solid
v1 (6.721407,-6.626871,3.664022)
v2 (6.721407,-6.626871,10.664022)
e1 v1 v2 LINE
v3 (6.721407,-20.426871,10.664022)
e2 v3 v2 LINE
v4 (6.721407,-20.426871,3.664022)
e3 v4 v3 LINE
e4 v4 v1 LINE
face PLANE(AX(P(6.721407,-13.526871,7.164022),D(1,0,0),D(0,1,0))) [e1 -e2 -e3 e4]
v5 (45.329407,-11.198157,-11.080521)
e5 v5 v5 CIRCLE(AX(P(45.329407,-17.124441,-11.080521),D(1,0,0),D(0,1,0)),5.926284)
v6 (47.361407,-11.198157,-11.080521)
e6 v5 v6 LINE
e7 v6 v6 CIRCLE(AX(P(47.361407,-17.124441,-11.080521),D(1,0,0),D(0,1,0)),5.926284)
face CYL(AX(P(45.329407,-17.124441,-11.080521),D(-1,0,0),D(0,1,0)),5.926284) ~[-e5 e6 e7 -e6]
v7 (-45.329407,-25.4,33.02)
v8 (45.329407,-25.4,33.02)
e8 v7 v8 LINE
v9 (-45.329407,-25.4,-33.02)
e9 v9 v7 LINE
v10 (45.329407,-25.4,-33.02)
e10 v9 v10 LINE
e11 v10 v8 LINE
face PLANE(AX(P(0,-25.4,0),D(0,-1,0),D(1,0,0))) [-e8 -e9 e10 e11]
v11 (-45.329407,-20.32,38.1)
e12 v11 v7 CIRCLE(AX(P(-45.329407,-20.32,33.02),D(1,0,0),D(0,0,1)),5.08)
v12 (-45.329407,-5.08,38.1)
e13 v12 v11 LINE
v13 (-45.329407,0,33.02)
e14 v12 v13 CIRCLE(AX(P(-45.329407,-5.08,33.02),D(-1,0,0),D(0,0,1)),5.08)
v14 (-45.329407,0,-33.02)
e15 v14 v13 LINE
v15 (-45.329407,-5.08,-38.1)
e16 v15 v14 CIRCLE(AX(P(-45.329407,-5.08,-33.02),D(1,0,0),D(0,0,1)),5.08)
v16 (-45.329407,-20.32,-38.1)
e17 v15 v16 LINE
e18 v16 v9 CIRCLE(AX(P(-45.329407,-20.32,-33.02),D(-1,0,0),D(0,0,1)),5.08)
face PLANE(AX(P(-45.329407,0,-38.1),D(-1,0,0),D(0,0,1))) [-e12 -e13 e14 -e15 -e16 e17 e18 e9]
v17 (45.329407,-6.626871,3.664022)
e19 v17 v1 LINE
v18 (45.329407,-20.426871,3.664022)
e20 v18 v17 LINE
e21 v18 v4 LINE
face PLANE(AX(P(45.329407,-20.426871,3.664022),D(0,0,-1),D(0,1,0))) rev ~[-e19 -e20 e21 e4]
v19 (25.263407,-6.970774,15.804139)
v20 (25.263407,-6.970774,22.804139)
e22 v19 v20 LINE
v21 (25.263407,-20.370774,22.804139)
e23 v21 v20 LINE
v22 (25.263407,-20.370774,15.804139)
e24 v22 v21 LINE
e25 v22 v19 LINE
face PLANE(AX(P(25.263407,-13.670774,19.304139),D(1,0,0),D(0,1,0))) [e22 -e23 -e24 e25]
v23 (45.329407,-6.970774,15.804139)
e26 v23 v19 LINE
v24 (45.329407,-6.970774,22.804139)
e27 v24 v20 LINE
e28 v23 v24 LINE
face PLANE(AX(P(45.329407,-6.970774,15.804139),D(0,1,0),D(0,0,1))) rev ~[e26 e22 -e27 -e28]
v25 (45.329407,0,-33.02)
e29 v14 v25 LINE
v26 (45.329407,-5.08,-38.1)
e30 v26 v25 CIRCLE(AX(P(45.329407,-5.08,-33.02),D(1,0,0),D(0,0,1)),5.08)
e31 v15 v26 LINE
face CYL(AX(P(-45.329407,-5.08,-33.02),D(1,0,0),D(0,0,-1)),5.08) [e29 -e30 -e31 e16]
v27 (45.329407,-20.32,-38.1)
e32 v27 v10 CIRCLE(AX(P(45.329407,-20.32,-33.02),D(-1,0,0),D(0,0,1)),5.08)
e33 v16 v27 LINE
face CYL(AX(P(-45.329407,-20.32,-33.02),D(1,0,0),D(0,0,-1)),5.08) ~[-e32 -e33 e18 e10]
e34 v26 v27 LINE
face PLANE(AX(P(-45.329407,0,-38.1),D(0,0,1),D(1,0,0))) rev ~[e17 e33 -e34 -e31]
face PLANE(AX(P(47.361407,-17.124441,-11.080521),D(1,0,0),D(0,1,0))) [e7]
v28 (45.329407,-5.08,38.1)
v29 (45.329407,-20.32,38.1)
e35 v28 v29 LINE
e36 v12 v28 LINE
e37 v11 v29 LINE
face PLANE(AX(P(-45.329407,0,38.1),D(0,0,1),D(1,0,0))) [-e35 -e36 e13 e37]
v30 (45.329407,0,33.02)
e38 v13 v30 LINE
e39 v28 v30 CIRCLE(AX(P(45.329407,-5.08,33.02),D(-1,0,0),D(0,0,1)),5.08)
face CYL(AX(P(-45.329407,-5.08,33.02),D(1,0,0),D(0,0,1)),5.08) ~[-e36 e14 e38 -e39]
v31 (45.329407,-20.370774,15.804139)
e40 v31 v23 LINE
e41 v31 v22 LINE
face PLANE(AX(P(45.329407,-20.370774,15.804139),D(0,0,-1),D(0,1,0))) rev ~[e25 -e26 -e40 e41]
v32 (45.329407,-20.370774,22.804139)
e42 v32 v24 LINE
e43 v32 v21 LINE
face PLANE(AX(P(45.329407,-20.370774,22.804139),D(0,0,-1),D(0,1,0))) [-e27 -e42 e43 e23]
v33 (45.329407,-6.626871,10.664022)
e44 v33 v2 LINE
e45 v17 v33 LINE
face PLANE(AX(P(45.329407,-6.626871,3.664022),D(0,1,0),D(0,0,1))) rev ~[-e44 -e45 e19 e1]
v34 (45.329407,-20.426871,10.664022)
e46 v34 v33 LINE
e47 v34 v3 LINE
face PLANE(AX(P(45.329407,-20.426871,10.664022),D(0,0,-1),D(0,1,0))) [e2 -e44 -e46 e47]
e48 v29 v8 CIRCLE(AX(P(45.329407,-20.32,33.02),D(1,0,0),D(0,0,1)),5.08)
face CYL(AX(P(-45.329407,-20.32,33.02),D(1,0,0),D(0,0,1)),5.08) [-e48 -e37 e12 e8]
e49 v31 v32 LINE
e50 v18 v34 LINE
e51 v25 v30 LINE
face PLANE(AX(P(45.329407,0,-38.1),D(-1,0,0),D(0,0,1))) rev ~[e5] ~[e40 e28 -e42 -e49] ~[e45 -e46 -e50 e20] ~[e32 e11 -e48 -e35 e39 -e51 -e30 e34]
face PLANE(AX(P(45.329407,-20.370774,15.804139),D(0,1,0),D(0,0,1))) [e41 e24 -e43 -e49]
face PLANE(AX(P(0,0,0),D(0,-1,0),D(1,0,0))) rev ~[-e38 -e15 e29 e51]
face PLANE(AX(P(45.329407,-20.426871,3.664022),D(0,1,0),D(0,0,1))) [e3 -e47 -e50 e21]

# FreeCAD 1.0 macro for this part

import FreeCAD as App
import Part
import Sketcher
from FreeCAD import Vector
Q = App.Units.Quantity


def edges_at(feature, points):
    """Names of the edges that pass closest to the given points."""
    edges = feature.Shape.Edges
    near = lambda p: min(range(len(edges)), key=lambda i: edges[i].distToShape(Part.Vertex(*p))[0])
    return sorted({f"Edge{near(p) + 1}" for p in points})

doc = App.newDocument("Part")
body = doc.addObject("PartDesign::Body", "Body")

sketch1 = doc.addObject("Sketcher::SketchObject", "Sketch")
body.addObject(sketch1)
sketch1.AttachmentSupport = (doc.XZ_Plane, [""])
sketch1.MapMode = "FlatFace"
sketch1.addGeometry(Part.LineSegment(Vector(-45, 38, 0), Vector(-45, -38, 0)), False)
sketch1.addGeometry(Part.LineSegment(Vector(-45, -38, 0), Vector(45, -38, 0)), False)
sketch1.addGeometry(Part.LineSegment(Vector(45, -38, 0), Vector(45, 38, 0)), False)
sketch1.addGeometry(Part.LineSegment(Vector(45, 38, 0), Vector(-45, 38, 0)), False)
sketch1.addConstraint(Sketcher.Constraint("Coincident", 0, 2, 1, 1))
sketch1.addConstraint(Sketcher.Constraint("Coincident", 1, 2, 2, 1))
sketch1.addConstraint(Sketcher.Constraint("Coincident", 2, 2, 3, 1))
sketch1.addConstraint(Sketcher.Constraint("Coincident", 3, 2, 0, 1))
sketch1.addConstraint(Sketcher.Constraint("Vertical", 0))
sketch1.addConstraint(Sketcher.Constraint("Horizontal", 1))
sketch1.addConstraint(Sketcher.Constraint("Vertical", 2))
sketch1.addConstraint(Sketcher.Constraint("Horizontal", 3))
sketch1.addConstraint(Sketcher.Constraint("Symmetric", 0, 2, 2, 2, -1, 1))
sketch1.addConstraint(Sketcher.Constraint("DistanceY", 0, 2, 0, 1, Q("3 in")))
sketch1.addConstraint(Sketcher.Constraint("DistanceX", 1, 1, 1, 2, 90.658814))
pad1 = doc.addObject("PartDesign::Pad", "Pad")
body.addObject(pad1)
pad1.Profile = sketch1
pad1.Length = Q("1 in")
doc.recompute()

fillet = doc.addObject("PartDesign::Fillet", "Fillet")
body.addObject(fillet)
fillet.Base = (pad1, edges_at(pad1, [
    (0, -25.4, 38.1),
    (0, 0, 38.1),
    (0, 0, -38.1),
    (0, -25.4, -38.1),
]))
fillet.Radius = Q("0.2 in")

sketch2 = doc.addObject("Sketcher::SketchObject", "Sketch001")
body.addObject(sketch2)
sketch2.AttachmentSupport = (doc.YZ_Plane, [""])
sketch2.MapMode = "FlatFace"
sketch2.AttachmentOffset = App.Placement(Vector(0, 0, 45.329407), App.Rotation())
sketch2.addGeometry(Part.LineSegment(Vector(-20, 11, 0), Vector(-20, 4, 0)), False)
sketch2.addGeometry(Part.LineSegment(Vector(-20, 4, 0), Vector(-7, 4, 0)), False)
sketch2.addGeometry(Part.LineSegment(Vector(-7, 4, 0), Vector(-7, 11, 0)), False)
sketch2.addGeometry(Part.LineSegment(Vector(-7, 11, 0), Vector(-20, 11, 0)), False)
sketch2.addConstraint(Sketcher.Constraint("Coincident", 0, 2, 1, 1))
sketch2.addConstraint(Sketcher.Constraint("Coincident", 1, 2, 2, 1))
sketch2.addConstraint(Sketcher.Constraint("Coincident", 2, 2, 3, 1))
sketch2.addConstraint(Sketcher.Constraint("Coincident", 3, 2, 0, 1))
sketch2.addConstraint(Sketcher.Constraint("Vertical", 0))
sketch2.addConstraint(Sketcher.Constraint("Horizontal", 1))
sketch2.addConstraint(Sketcher.Constraint("Vertical", 2))
sketch2.addConstraint(Sketcher.Constraint("Horizontal", 3))
sketch2.addConstraint(Sketcher.Constraint("DistanceX", 1, 1, 1, 2, 13.8))
sketch2.addConstraint(Sketcher.Constraint("DistanceY", 0, 2, 0, 1, 7.0))
sketch2.addConstraint(Sketcher.Constraint("DistanceX", 0, 2, -1, 1, 20.426871))
sketch2.addConstraint(Sketcher.Constraint("DistanceY", -1, 1, 2, 2, 10.664022))
pocket1 = doc.addObject("PartDesign::Pocket", "Pocket")
body.addObject(pocket1)
pocket1.Profile = sketch2
pocket1.Length = Q("1.52 in")

sketch3 = doc.addObject("Sketcher::SketchObject", "Sketch002")
body.addObject(sketch3)
sketch3.AttachmentSupport = (doc.YZ_Plane, [""])
sketch3.MapMode = "FlatFace"
sketch3.AttachmentOffset = App.Placement(Vector(0, 0, 45.329407), App.Rotation())
sketch3.addGeometry(Part.LineSegment(Vector(-20, 23, 0), Vector(-20, 16, 0)), False)
sketch3.addGeometry(Part.LineSegment(Vector(-20, 16, 0), Vector(-7, 16, 0)), False)
sketch3.addGeometry(Part.LineSegment(Vector(-7, 16, 0), Vector(-7, 23, 0)), False)
sketch3.addGeometry(Part.LineSegment(Vector(-7, 23, 0), Vector(-20, 23, 0)), False)
sketch3.addConstraint(Sketcher.Constraint("Coincident", 0, 2, 1, 1))
sketch3.addConstraint(Sketcher.Constraint("Coincident", 1, 2, 2, 1))
sketch3.addConstraint(Sketcher.Constraint("Coincident", 2, 2, 3, 1))
sketch3.addConstraint(Sketcher.Constraint("Coincident", 3, 2, 0, 1))
sketch3.addConstraint(Sketcher.Constraint("Vertical", 0))
sketch3.addConstraint(Sketcher.Constraint("Horizontal", 1))
sketch3.addConstraint(Sketcher.Constraint("Vertical", 2))
sketch3.addConstraint(Sketcher.Constraint("Horizontal", 3))
sketch3.addConstraint(Sketcher.Constraint("DistanceX", 1, 1, 1, 2, 13.4))
sketch3.addConstraint(Sketcher.Constraint("DistanceY", 0, 2, 0, 1, 7.0))
sketch3.addConstraint(Sketcher.Constraint("DistanceY", -1, 1, 0, 2, 15.804139))
sketch3.addConstraint(Sketcher.Constraint("DistanceX", 0, 2, -1, 1, 20.370774))
pocket2 = doc.addObject("PartDesign::Pocket", "Pocket001")
body.addObject(pocket2)
pocket2.Profile = sketch3
pocket2.Length = Q("0.79 in")

sketch4 = doc.addObject("Sketcher::SketchObject", "Sketch003")
body.addObject(sketch4)
sketch4.AttachmentSupport = (doc.YZ_Plane, [""])
sketch4.MapMode = "FlatFace"
sketch4.AttachmentOffset = App.Placement(Vector(0, 0, 45.329407), App.Rotation())
sketch4.addGeometry(Part.Circle(Vector(-17, -11, 0), Vector(0, 0, 1), 6), False)
sketch4.addConstraint(Sketcher.Constraint("Diameter", 0, 11.852568))
sketch4.addConstraint(Sketcher.Constraint("DistanceX", 0, 3, -1, 1, 17.124441))
sketch4.addConstraint(Sketcher.Constraint("DistanceY", 0, 3, -1, 1, 11.080521))
pad2 = doc.addObject("PartDesign::Pad", "Pad001")
body.addObject(pad2)
pad2.Profile = sketch4
pad2.Length = Q("0.08 in")

doc.recompute()
